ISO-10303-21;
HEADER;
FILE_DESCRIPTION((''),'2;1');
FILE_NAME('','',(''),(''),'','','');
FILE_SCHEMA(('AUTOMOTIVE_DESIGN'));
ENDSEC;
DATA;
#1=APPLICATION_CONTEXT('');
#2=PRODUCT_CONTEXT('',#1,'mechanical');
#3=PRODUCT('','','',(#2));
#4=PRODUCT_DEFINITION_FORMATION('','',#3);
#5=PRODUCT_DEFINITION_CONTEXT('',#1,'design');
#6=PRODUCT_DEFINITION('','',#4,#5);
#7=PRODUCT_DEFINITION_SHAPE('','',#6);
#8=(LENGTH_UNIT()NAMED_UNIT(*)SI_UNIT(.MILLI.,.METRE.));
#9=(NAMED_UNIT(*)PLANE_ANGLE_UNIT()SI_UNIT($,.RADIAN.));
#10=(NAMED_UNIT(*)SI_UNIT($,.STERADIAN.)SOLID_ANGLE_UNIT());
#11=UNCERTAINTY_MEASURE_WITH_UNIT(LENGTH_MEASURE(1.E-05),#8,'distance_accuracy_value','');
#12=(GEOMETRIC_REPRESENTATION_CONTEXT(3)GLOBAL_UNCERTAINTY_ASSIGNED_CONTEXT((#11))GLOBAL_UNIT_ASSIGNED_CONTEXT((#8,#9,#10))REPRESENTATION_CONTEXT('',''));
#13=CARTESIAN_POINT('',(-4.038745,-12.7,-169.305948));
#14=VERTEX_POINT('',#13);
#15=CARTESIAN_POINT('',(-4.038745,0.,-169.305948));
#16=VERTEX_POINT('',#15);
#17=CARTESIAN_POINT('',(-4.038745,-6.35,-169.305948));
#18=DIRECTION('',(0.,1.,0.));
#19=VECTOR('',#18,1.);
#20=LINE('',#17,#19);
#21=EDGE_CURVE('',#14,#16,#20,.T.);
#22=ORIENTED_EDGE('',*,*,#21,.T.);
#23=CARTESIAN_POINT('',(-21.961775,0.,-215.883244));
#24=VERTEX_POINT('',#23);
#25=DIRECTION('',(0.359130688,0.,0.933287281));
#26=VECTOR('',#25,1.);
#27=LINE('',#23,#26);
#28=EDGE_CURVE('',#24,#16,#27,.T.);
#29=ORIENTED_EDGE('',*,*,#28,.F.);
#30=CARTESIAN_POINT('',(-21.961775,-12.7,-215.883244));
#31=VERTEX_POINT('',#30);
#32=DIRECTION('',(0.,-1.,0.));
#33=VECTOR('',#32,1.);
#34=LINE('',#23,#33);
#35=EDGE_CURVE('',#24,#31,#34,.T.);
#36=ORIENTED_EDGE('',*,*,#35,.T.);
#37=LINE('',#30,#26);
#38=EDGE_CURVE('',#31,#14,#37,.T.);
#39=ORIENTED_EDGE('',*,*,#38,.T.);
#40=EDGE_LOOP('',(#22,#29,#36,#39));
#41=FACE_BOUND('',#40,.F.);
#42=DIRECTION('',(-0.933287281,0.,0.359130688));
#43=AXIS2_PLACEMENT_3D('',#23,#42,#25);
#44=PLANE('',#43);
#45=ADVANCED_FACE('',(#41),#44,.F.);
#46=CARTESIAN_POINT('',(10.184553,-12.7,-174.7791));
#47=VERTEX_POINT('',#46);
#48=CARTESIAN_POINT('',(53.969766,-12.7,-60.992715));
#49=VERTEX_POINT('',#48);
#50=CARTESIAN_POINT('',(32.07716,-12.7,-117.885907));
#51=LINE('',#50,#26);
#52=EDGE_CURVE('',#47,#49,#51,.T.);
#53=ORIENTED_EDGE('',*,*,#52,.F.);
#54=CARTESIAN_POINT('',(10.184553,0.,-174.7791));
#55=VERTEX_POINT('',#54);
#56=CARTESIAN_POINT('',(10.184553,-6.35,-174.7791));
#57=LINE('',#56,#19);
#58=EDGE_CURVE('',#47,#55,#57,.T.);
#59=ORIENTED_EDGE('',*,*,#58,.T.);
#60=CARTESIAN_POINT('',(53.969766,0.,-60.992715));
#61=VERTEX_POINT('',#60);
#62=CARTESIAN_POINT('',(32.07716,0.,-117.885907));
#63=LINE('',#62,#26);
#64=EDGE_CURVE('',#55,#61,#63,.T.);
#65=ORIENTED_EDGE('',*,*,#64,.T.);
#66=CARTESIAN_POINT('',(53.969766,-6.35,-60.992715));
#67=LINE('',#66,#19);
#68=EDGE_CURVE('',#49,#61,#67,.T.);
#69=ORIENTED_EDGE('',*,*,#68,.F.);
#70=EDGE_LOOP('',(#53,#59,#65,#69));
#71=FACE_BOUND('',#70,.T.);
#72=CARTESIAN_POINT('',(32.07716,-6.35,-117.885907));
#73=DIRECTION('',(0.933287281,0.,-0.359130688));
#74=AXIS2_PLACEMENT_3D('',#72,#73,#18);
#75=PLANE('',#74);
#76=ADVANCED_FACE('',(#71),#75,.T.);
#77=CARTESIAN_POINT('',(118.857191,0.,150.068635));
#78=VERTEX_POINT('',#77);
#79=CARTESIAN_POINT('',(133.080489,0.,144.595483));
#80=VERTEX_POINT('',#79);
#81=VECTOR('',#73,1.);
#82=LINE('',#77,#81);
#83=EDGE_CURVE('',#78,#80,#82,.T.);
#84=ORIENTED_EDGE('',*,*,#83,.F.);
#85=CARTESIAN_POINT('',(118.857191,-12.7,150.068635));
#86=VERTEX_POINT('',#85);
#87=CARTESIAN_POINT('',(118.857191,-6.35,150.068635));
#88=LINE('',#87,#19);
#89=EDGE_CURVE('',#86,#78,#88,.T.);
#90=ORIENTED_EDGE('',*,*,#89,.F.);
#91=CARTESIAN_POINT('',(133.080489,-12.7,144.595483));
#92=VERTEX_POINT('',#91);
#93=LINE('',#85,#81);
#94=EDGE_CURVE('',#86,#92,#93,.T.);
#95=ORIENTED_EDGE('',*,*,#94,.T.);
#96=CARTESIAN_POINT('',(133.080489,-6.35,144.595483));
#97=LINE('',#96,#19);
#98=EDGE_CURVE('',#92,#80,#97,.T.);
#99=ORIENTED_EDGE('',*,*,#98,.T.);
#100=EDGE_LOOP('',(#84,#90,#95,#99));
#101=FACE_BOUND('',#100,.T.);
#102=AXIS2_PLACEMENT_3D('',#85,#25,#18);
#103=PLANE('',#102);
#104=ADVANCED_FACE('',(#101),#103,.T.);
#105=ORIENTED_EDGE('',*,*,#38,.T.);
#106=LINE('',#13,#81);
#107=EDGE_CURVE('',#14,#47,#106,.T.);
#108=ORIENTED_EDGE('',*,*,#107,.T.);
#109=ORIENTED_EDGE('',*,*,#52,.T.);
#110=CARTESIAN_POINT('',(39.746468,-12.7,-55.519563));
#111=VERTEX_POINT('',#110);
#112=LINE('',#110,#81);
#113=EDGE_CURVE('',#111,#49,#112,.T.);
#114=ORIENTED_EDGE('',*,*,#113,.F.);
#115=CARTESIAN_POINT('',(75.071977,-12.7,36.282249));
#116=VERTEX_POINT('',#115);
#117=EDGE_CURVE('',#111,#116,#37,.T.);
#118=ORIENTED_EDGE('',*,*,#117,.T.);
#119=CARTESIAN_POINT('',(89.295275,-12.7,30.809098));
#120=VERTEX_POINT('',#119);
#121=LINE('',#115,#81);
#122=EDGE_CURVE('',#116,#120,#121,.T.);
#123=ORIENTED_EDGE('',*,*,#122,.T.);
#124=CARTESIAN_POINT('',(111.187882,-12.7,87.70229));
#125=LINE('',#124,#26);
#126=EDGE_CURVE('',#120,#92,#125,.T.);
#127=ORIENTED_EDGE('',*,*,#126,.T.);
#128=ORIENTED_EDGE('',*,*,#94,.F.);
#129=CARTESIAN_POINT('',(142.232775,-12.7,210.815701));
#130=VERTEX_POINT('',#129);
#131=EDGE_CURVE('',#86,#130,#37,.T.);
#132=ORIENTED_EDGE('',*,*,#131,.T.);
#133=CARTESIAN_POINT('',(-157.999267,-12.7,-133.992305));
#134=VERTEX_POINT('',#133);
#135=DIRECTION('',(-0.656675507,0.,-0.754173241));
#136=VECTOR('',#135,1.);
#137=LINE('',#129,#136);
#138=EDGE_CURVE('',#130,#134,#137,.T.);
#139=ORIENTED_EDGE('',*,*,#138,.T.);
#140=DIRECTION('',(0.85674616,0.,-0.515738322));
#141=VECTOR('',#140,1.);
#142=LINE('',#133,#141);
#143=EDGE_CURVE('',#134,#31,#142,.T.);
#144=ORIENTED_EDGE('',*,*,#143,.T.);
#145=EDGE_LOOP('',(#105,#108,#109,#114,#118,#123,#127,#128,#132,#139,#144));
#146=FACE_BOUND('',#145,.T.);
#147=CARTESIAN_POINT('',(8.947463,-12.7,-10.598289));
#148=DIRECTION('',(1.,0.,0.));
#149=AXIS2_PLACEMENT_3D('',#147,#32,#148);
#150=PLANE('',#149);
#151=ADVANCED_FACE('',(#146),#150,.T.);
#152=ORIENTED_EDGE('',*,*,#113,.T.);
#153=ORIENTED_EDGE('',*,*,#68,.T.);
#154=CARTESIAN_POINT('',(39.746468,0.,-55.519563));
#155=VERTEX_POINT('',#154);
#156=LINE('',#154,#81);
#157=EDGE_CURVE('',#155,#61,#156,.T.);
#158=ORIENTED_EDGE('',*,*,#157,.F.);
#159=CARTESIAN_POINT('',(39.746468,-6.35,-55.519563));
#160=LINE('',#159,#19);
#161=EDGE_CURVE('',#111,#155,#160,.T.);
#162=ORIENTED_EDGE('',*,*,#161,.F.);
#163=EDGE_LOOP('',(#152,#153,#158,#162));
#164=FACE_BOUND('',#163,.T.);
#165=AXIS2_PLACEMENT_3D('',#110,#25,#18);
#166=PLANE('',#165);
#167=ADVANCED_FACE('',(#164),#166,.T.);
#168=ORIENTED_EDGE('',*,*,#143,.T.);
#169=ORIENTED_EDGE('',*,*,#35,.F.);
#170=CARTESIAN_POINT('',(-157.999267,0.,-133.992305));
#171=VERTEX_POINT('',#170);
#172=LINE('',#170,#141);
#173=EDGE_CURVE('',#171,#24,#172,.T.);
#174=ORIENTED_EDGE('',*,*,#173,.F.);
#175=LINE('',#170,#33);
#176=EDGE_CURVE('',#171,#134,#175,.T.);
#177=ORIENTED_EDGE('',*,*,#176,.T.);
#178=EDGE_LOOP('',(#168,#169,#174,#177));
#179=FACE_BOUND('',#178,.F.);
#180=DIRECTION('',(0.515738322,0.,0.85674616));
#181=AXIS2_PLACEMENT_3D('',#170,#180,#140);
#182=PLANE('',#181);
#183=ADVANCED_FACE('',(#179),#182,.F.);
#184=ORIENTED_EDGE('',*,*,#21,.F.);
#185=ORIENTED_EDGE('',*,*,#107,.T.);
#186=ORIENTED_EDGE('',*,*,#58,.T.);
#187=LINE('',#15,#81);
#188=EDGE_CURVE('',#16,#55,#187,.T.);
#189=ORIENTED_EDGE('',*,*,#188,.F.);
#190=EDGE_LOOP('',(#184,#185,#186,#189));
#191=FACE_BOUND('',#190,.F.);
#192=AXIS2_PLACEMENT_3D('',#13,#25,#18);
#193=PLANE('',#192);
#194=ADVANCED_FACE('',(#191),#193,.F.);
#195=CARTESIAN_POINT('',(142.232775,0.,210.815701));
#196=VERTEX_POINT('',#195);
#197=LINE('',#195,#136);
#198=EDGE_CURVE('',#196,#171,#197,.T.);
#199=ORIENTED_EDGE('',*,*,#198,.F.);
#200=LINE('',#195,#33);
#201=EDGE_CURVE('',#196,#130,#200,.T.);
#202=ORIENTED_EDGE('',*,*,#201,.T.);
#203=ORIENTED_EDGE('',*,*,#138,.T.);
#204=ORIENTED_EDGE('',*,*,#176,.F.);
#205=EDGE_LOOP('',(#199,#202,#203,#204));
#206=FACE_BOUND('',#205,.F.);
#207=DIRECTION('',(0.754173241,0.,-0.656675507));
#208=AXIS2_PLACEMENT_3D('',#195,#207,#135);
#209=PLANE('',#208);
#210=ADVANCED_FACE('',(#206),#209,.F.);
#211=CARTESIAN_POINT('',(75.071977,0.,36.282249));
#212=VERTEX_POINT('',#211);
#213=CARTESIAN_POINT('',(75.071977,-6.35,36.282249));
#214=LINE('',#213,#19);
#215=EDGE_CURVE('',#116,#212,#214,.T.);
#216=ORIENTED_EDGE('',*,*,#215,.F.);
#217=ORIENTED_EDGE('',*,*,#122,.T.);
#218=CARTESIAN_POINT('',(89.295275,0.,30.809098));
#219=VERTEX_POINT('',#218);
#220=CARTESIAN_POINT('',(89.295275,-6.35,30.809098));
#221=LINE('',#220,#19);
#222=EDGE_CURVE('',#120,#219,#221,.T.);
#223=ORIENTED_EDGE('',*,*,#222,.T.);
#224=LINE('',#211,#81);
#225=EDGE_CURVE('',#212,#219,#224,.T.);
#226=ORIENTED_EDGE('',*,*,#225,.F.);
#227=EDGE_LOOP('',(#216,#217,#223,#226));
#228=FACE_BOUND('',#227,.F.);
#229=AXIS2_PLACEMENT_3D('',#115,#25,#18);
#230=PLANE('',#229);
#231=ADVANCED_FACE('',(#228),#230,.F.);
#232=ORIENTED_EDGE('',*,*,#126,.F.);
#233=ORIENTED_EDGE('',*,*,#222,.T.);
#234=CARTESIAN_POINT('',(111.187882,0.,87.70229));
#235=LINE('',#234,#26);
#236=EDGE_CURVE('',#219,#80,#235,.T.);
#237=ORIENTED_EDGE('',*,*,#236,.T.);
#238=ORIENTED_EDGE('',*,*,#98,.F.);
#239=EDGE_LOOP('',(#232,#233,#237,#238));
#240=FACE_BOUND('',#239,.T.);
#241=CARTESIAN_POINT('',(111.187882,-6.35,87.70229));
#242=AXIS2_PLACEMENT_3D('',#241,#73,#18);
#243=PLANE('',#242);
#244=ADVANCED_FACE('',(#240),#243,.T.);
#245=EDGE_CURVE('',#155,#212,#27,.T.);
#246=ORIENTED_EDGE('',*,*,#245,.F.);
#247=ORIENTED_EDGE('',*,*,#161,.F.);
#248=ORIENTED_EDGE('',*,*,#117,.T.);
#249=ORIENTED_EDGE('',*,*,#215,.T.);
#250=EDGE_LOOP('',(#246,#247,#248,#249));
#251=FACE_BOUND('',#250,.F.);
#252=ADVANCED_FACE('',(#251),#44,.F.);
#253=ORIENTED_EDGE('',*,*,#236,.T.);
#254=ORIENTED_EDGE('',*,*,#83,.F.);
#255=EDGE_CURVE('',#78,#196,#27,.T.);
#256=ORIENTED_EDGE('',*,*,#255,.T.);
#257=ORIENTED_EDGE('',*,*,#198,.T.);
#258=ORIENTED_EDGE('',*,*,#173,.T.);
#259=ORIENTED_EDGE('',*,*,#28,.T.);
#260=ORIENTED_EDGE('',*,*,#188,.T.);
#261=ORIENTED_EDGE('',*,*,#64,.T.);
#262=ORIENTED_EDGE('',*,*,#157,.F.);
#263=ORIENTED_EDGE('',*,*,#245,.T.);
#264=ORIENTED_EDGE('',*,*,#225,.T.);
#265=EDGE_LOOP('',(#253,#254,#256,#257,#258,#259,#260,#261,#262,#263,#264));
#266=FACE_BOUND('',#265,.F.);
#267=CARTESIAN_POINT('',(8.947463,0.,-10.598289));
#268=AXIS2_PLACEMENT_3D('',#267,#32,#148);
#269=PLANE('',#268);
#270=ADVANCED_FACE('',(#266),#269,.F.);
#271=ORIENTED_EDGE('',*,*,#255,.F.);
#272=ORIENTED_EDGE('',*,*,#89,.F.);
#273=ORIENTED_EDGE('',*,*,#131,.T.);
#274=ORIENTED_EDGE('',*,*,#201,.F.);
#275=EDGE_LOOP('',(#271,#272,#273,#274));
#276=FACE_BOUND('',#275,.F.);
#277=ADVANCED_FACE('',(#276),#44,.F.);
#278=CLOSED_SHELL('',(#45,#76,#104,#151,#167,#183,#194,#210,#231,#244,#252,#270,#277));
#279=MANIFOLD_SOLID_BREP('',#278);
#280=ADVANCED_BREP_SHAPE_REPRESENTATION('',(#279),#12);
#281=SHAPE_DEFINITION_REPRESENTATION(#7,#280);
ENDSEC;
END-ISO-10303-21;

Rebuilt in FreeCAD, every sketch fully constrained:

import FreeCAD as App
import Part
import Sketcher

V = App.Vector
Q = App.Units.Quantity

doc = App.newDocument("Part")
body = doc.addObject("PartDesign::Body", "Body")

# Sketch on XZ plane
sketch1 = body.newObject("Sketcher::SketchObject", "Sketch")
sketch1.AttachmentSupport = (doc.getObject("XZ_Plane"), [""])
sketch1.MapMode = "FlatFace"
sketch1.addGeometry([
    Part.LineSegment(V(-22, -216, 0), V(142, 211, 0)),
    Part.LineSegment(V(142, 211, 0), V(-158, -134, 0)),
    Part.LineSegment(V(-158, -134, 0), V(-22, -216, 0)),
], False)
sketch1.addConstraint([
    Sketcher.Constraint("Coincident", 0, 2, 1, 1),
    Sketcher.Constraint("Coincident", 1, 2, 2, 1),
    Sketcher.Constraint("Coincident", 2, 2, 0, 1),
    Sketcher.Constraint("Equal", 0, 1),
    Sketcher.Constraint("Distance", 0, Q("18 in")),
    Sketcher.Constraint("DistanceY", -1, 1, 0, 2, 210.815701),
    Sketcher.Constraint("DistanceX", 1, 2, 0, 2, 300.232042),
    Sketcher.Constraint("DistanceX", 1, 2, 2, 2, 136.037491),
    Sketcher.Constraint("DistanceX", -1, 1, 0, 2, 142.232775),
])
pad1 = body.newObject("PartDesign::Pad", "Pad")
pad1.Profile = sketch1
pad1.Length = Q("0.5 in")

# Sketch on an angled plane
sketch2 = body.newObject("Sketcher::SketchObject", "Sketch001")
sketch2.Placement = App.Placement(V(53.228782, 0, -20.482535), App.Rotation(V(0, 1, 0), V(0.359130688, 0, 0.933287281), V(0.933287281, 0, -0.359130688), "ZXY"))
sketch2.addGeometry([
    Part.LineSegment(V(-13, 183, 0), V(-13, 61, 0)),  # 0
    Part.LineSegment(V(-13, 61, 0), V(0, 61, 0)),  # 1
    Part.LineSegment(V(0, 61, 0), V(0, 183, 0)),  # 2
    Part.LineSegment(V(0, 183, 0), V(-13, 183, 0)),  # 3
    Part.LineSegment(V(-13, -38, 0), V(-13, -159, 0)),  # 4
    Part.LineSegment(V(-13, -159, 0), V(0, -159, 0)),  # 5
    Part.LineSegment(V(0, -159, 0), V(0, -38, 0)),  # 6
    Part.LineSegment(V(0, -38, 0), V(-13, -38, 0)),  # 7
], False)
sketch2.addConstraint([
    Sketcher.Constraint("Coincident", 0, 2, 1, 1),
    Sketcher.Constraint("Coincident", 1, 2, 2, 1),
    Sketcher.Constraint("Coincident", 2, 2, 3, 1),
    Sketcher.Constraint("Coincident", 3, 2, 0, 1),
    Sketcher.Constraint("Coincident", 4, 2, 5, 1),
    Sketcher.Constraint("Coincident", 5, 2, 6, 1),
    Sketcher.Constraint("Coincident", 6, 2, 7, 1),
    Sketcher.Constraint("Coincident", 7, 2, 4, 1),
    Sketcher.Constraint("Vertical", 0),
    Sketcher.Constraint("Horizontal", 1),
    Sketcher.Constraint("Vertical", 2),
    Sketcher.Constraint("Horizontal", 3),
    Sketcher.Constraint("Vertical", 4),
    Sketcher.Constraint("Horizontal", 5),
    Sketcher.Constraint("Vertical", 6),
    Sketcher.Constraint("Horizontal", 7),
    Sketcher.Constraint("PointOnObject", 1, 2, -2),
    Sketcher.Constraint("PointOnObject", 5, 2, -2),
    Sketcher.Constraint("Vertical", 3, 2, 4, 2),
    Sketcher.Constraint("Equal", 2, 4),
    Sketcher.Constraint("DistanceX", 1, 1, 1, 2, Q("0.5 in")),
    Sketcher.Constraint("DistanceY", 0, 2, 0, 1, Q("4.8 in")),
    Sketcher.Constraint("DistanceY", 4, 2, 0, 2, 220.283938),
    Sketcher.Constraint("DistanceY", -1, 1, 0, 2, 60.822413),
])
pad2 = body.newObject("PartDesign::Pad", "Pad001")
pad2.Profile = sketch2
pad2.Length = Q("0.6 in")

doc.recompute()
